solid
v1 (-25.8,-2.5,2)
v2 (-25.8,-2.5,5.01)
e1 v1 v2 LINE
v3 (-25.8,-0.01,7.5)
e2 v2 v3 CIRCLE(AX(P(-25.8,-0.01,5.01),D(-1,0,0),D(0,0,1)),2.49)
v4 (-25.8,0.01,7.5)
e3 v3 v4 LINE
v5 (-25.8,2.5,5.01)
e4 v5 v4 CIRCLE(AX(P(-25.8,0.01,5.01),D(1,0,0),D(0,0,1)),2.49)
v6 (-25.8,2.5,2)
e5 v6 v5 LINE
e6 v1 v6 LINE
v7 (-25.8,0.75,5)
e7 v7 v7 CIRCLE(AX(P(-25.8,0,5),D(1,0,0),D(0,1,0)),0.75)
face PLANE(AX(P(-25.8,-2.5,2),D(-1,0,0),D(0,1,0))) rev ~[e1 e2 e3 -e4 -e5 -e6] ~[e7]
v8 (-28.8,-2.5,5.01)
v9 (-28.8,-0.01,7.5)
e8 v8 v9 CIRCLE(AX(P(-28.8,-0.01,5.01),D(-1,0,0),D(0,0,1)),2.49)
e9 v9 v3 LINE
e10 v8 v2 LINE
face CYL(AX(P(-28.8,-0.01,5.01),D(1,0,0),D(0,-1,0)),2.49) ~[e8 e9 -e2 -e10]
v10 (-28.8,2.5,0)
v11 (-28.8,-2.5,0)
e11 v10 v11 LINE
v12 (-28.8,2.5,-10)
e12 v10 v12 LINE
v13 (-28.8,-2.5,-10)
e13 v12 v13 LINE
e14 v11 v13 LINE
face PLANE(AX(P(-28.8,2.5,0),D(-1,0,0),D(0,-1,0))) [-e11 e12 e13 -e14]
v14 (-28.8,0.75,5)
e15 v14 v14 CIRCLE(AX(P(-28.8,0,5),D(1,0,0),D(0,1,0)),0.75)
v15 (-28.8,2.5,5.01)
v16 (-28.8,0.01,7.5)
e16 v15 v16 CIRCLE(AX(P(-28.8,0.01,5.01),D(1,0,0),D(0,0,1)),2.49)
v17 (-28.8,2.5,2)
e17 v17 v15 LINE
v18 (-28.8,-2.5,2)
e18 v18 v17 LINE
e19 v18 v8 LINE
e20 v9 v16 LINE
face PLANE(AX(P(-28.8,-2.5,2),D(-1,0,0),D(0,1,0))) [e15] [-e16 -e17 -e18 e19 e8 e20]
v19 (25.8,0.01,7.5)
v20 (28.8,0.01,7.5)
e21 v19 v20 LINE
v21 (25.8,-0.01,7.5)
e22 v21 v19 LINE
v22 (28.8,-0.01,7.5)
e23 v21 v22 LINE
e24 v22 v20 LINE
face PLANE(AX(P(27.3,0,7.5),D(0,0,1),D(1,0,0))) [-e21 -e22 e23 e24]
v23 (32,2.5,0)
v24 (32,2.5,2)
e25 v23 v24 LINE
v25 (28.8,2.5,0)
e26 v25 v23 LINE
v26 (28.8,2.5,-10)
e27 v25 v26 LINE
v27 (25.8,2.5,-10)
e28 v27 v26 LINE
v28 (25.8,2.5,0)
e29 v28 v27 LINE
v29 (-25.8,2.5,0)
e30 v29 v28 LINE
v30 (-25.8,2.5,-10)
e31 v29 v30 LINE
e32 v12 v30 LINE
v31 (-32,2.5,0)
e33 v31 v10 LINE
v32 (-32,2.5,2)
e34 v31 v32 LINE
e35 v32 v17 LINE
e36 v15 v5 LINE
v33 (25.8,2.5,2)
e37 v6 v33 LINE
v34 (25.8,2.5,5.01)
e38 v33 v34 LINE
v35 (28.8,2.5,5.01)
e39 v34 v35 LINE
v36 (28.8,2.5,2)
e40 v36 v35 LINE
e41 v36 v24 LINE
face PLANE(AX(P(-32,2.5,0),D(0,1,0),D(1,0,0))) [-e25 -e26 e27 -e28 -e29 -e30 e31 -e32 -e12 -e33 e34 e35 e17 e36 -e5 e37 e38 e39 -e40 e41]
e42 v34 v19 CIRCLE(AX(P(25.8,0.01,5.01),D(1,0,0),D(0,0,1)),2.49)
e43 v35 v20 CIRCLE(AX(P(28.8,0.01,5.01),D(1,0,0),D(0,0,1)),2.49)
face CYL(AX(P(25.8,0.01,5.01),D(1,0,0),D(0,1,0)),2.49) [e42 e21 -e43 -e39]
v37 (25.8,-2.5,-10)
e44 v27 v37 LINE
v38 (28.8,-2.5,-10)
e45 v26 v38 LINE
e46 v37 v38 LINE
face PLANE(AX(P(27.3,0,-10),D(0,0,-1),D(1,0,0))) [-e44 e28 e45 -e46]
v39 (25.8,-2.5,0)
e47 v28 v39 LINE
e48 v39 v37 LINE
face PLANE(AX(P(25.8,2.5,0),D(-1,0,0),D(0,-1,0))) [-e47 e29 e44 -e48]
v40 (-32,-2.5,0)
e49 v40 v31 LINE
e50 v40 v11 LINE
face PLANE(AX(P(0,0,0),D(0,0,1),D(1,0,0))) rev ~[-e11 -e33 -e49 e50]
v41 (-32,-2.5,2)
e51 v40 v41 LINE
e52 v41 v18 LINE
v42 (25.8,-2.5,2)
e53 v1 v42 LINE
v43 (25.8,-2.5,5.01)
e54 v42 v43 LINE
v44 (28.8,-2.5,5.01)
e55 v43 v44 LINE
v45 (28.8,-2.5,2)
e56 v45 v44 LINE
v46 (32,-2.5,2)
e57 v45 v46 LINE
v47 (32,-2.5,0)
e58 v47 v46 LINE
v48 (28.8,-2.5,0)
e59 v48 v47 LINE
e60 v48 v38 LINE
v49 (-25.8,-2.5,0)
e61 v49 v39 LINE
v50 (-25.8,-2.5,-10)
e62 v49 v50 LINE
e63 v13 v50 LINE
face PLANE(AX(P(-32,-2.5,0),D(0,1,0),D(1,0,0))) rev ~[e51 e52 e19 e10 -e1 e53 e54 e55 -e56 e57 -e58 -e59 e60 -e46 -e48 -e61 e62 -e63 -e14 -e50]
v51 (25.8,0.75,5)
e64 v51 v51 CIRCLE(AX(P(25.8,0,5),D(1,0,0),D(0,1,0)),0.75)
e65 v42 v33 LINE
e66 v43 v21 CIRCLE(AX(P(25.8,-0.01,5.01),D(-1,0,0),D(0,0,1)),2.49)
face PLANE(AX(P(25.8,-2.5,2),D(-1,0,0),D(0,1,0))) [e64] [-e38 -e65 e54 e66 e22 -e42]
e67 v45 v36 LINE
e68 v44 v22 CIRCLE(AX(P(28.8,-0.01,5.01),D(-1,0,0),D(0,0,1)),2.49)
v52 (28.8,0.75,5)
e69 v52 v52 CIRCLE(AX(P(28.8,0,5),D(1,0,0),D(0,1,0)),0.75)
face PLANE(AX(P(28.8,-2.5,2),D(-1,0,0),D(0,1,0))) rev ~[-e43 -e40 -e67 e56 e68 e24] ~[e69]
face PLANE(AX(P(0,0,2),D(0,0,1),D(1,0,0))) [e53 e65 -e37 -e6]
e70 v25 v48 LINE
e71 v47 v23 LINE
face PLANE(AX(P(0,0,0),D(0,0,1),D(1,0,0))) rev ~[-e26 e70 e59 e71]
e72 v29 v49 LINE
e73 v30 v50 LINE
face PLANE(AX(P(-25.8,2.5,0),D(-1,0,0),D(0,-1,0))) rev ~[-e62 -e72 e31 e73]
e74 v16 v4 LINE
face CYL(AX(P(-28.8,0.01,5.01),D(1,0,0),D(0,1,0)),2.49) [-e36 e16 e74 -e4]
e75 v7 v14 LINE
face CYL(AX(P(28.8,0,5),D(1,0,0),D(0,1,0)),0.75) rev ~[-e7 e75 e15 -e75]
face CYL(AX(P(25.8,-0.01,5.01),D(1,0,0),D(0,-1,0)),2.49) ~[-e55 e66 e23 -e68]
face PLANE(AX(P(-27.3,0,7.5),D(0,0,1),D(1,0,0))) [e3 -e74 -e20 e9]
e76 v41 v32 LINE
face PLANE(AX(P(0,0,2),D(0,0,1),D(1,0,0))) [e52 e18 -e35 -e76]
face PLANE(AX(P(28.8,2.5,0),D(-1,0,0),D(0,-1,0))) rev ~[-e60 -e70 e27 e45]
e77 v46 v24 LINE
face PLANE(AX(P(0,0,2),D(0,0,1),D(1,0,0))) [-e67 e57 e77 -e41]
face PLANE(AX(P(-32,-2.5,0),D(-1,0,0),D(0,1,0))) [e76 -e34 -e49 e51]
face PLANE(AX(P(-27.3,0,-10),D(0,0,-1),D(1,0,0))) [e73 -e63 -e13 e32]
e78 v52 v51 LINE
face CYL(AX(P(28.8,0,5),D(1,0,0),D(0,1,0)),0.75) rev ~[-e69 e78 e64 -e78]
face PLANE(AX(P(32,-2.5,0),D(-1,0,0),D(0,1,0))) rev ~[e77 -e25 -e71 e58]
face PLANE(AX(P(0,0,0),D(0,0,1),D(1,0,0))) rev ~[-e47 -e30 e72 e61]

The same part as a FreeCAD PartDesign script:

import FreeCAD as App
import Part
import Sketcher

V = App.Vector


def edges_at(feature, points):
    """Names of the edges that pass closest to the given points."""
    edges = feature.Shape.Edges
    near = lambda p: min(range(len(edges)), key=lambda i: edges[i].distToShape(Part.Vertex(*p))[0])
    return sorted({f"Edge{near(p) + 1}" for p in points})


def add_polygon(sketch, points):
    """Adds a closed chain of lines whose ends are joined by coincident constraints."""
    first, n = sketch.GeometryCount, len(points)
    for a, b in zip(points, points[1:] + points[:1]):
        sketch.addGeometry(Part.LineSegment(App.Vector(*a, 0), App.Vector(*b, 0)), False)
    for i in range(n):
        sketch.addConstraint(Sketcher.Constraint("Coincident", first + i, 2, first + (i + 1) % n, 1))

doc = App.newDocument("Part")
body = doc.addObject("PartDesign::Body", "Body")

sketch1 = doc.addObject("Sketcher::SketchObject", "Sketch")
body.addObject(sketch1)
sketch1.AttachmentSupport = (doc.XY_Plane, [""])
sketch1.MapMode = "FlatFace"
add_polygon(sketch1, [(-32, 2), (-32, -2), (32, -2), (32, 2)])
sketch1.addConstraint([
    Sketcher.Constraint("Vertical", 0),
    Sketcher.Constraint("Horizontal", 1),
    Sketcher.Constraint("Vertical", 2),
    Sketcher.Constraint("Horizontal", 3),
    Sketcher.Constraint("Symmetric", 0, 2, 2, 2, -1, 1),
    Sketcher.Constraint("DistanceX", 1, 1, 1, 2, 64.0),
    Sketcher.Constraint("DistanceY", 0, 2, 0, 1, 5.0),
])
pad1 = doc.addObject("PartDesign::Pad", "Pad")
body.addObject(pad1)
pad1.Profile = sketch1
pad1.Length = 2

sketch2 = doc.addObject("Sketcher::SketchObject", "Sketch001")
body.addObject(sketch2)
sketch2.AttachmentSupport = (doc.XY_Plane, [""])
sketch2.MapMode = "FlatFace"
sketch2.AttachmentOffset = App.Placement(V(0, 0, 2), App.Rotation())
add_polygon(sketch2, [(-28.8, 2.5), (-28.8, -2.5), (-25.8, -2.5), (-25.8, 2.5)])
add_polygon(sketch2, [(25.8, 2.5), (25.8, -2.5), (28.8, -2.5), (28.8, 2.5)])
sketch2.addConstraint([
    Sketcher.Constraint("Vertical", 0),
    Sketcher.Constraint("Horizontal", 1),
    Sketcher.Constraint("Vertical", 2),
    Sketcher.Constraint("Horizontal", 3),
    Sketcher.Constraint("Vertical", 4),
    Sketcher.Constraint("Horizontal", 5),
    Sketcher.Constraint("Vertical", 6),
    Sketcher.Constraint("Horizontal", 7),
    Sketcher.Constraint("Symmetric", 2, 2, 4, 2, -1, 1),
    Sketcher.Constraint("Symmetric", 0, 2, 6, 2, -1, 1),
    Sketcher.Constraint("Horizontal", 1, 2, 4, 2),
    Sketcher.Constraint("DistanceX", 1, 1, 1, 2, 3.0),
    Sketcher.Constraint("DistanceY", 0, 2, 0, 1, 5.0),
    Sketcher.Constraint("DistanceX", 0, 2, -1, 1, 28.8),
])
pad2 = doc.addObject("PartDesign::Pad", "Pad001")
body.addObject(pad2)
pad2.Profile = sketch2
pad2.Length = 5.5

sketch3 = doc.addObject("Sketcher::SketchObject", "Sketch002")
body.addObject(sketch3)
sketch3.AttachmentSupport = (doc.YZ_Plane, [""])
sketch3.MapMode = "FlatFace"
sketch3.AttachmentOffset = App.Placement(V(0, 0, 28.8), App.Rotation())
sketch3.addGeometry(Part.Circle(V(0, 5, 0), V(0, 0, 1), 0.8), False)
sketch3.addConstraint([
    Sketcher.Constraint("PointOnObject", 0, 3, -2),
    Sketcher.Constraint("Diameter", 0, 1.5),
    Sketcher.Constraint("DistanceY", -1, 1, 0, 3, 5.0),
])
pocket1 = doc.addObject("PartDesign::Pocket", "Pocket")
body.addObject(pocket1)
pocket1.Profile = sketch3
pocket1.Length = 70

sketch4 = doc.addObject("Sketcher::SketchObject", "Sketch003")
body.addObject(sketch4)
sketch4.AttachmentSupport = (doc.XY_Plane, [""])
sketch4.MapMode = "FlatFace"
add_polygon(sketch4, [(-28.8, -2.5), (-28.8, 2.5), (-25.8, 2.5), (-25.8, -2.5)])
add_polygon(sketch4, [(25.8, -2.5), (25.8, 2.5), (28.8, 2.5), (28.8, -2.5)])
sketch4.addConstraint([
    Sketcher.Constraint("Vertical", 0),
    Sketcher.Constraint("Horizontal", 1),
    Sketcher.Constraint("Vertical", 2),
    Sketcher.Constraint("Horizontal", 3),
    Sketcher.Constraint("Vertical", 4),
    Sketcher.Constraint("Horizontal", 5),
    Sketcher.Constraint("Vertical", 6),
    Sketcher.Constraint("Horizontal", 7),
    Sketcher.Constraint("Symmetric", 2, 2, 4, 2, -1, 1),
    Sketcher.Constraint("Symmetric", 0, 2, 6, 2, -1, 1),
    Sketcher.Constraint("Horizontal", 1, 2, 4, 2),
    Sketcher.Constraint("DistanceX", 1, 1, 1, 2, 3.0),
    Sketcher.Constraint("DistanceY", 0, 1, 0, 2, 5.0),
    Sketcher.Constraint("DistanceX", 0, 2, -1, 1, 28.8),
])
pad3 = doc.addObject("PartDesign::Pad", "Pad002")
body.addObject(pad3)
pad3.Profile = sketch4
pad3.Length = 10
pad3.Reversed = True
doc.recompute()

fillet = doc.addObject("PartDesign::Fillet", "Fillet")
body.addObject(fillet)
fillet.Base = (pad3, edges_at(pad3, [
    (27.3, -2.5, 7.5),
    (-27.3, -2.5, 7.5),
    (-27.3, 2.5, 7.5),
    (27.3, 2.5, 7.5),
]))
fillet.Radius = 2.49

doc.recompute()
